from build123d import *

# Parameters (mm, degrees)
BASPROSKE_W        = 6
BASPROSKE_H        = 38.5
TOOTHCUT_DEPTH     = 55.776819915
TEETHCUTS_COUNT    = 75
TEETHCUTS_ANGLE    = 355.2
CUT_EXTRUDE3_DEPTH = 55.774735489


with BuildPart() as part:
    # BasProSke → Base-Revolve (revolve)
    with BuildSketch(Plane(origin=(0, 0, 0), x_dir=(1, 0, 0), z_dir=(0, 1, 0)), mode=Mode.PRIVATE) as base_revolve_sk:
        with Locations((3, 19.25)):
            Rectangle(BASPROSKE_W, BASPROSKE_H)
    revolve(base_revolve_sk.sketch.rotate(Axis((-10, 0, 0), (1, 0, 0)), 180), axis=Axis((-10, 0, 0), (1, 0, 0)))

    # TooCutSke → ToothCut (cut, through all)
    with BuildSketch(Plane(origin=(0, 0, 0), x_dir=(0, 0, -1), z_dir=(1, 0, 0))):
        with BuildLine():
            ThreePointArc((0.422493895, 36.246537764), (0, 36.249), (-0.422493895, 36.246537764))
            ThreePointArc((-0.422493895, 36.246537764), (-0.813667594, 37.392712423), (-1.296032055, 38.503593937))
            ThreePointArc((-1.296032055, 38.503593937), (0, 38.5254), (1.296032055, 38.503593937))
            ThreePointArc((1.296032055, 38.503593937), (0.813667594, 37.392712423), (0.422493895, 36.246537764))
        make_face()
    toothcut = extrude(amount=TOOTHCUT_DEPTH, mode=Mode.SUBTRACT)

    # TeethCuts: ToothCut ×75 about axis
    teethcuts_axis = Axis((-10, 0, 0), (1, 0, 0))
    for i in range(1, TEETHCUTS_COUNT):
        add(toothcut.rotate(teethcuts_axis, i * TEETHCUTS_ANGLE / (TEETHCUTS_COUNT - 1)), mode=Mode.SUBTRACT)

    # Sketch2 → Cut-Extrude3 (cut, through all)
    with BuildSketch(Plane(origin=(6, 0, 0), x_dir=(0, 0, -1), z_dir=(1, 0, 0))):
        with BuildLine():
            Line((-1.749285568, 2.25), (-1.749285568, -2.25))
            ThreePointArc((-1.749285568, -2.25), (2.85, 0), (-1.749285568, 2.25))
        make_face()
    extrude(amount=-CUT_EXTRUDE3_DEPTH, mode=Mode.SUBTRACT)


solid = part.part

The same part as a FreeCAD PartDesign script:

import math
import FreeCAD as App
import Part
import Sketcher

V = App.Vector

doc = App.newDocument("Part")
body = doc.addObject("PartDesign::Body", "Body")

# Sketch on XZ plane
sketch1 = doc.addObject("Sketcher::SketchObject", "Sketch")
body.addObject(sketch1)
sketch1.AttachmentSupport = (doc.XZ_Plane, [""])
sketch1.MapMode = "FlatFace"
sketch1.addGeometry([
    Part.LineSegment(V(0, -38, 0), V(0, 0, 0)),
    Part.LineSegment(V(0, 0, 0), V(6, 0, 0)),
    Part.LineSegment(V(6, 0, 0), V(6, -38, 0)),
    Part.LineSegment(V(6, -38, 0), V(0, -38, 0)),
], False)
sketch1.addConstraint([
    Sketcher.Constraint("Coincident", 0, 2, 1, 1),
    Sketcher.Constraint("Coincident", 1, 2, 2, 1),
    Sketcher.Constraint("Coincident", 2, 2, 3, 1),
    Sketcher.Constraint("Coincident", 3, 2, 0, 1),
    Sketcher.Constraint("Vertical", 0),
    Sketcher.Constraint("Horizontal", 1),
    Sketcher.Constraint("Vertical", 2),
    Sketcher.Constraint("Horizontal", 3),
    Sketcher.Constraint("Coincident", 0, 2, -1, 1),
    Sketcher.Constraint("DistanceX", 1, 1, 1, 2, 6.0),
    Sketcher.Constraint("DistanceY", 0, 1, 0, 2, 38.5),
])
revolution = doc.addObject("PartDesign::Revolution", "Revolution")
body.addObject(revolution)
revolution.Profile = sketch1
revolution.ReferenceAxis = (sketch1, ["H_Axis"])
revolution.Angle = 360

# Sketch on YZ plane
sketch2 = doc.addObject("Sketcher::SketchObject", "Sketch001")
body.addObject(sketch2)
sketch2.AttachmentSupport = (doc.YZ_Plane, [""])
sketch2.MapMode = "FlatFace"
sketch2.addGeometry([
    Part.ArcOfCircle(Part.Circle(V(0, 0, 0), V(0, 0, 1), 36.2), math.radians(-0.67), math.radians(0.67)),
    Part.ArcOfCircle(Part.Circle(V(32, -14.8, 0), V(0, 0, 1), 15), math.radians(64.22), math.radians(73.47)),
    Part.ArcOfCircle(Part.Circle(V(0, 0, 0), V(0, 0, 1), 38.5), math.radians(-1.93), math.radians(1.93)),
    Part.ArcOfCircle(Part.Circle(V(32, 14.8, 0), V(0, 0, 1), 15), math.radians(-73.47), math.radians(-64.22)),
], False)
sketch2.addConstraint([
    Sketcher.Constraint("Coincident", 0, 1, 1, 2),
    Sketcher.Constraint("Coincident", 1, 1, 2, 1),
    Sketcher.Constraint("Coincident", 2, 2, 3, 2),
    Sketcher.Constraint("Coincident", 3, 1, 0, 2),
    Sketcher.Constraint("Coincident", 0, 3, -1, 1),
    Sketcher.Constraint("Coincident", 2, 3, -1, 1),
    Sketcher.Constraint("Equal", 1, 3),
    Sketcher.Constraint("Symmetric", 1, 3, 3, 3, -1),
    Sketcher.Constraint("Radius", 1, 15.0),
    Sketcher.Constraint("Radius", 2, 38.5254),
    Sketcher.Constraint("Radius", 0, 36.248994),
    Sketcher.Constraint("DistanceX", -1, 1, 1, 3, 31.978669),
    Sketcher.Constraint("DistanceY", 1, 3, 3, 3, 29.60505),
])
pocket1 = doc.addObject("PartDesign::Pocket", "Pocket")
body.addObject(pocket1)
pocket1.Profile = sketch2
pocket1.Type = "ThroughAll"
pocket1.Reversed = True
doc.recompute()

polarpattern = doc.addObject("PartDesign::PolarPattern", "PolarPattern")
body.addObject(polarpattern)
polarpattern.Originals = [pocket1]
polarpattern.Axis = (doc.X_Axis, [""])
polarpattern.Angle = 360
polarpattern.Occurrences = 75
body.Tip = polarpattern

# Sketch on YZ plane
sketch3 = doc.addObject("Sketcher::SketchObject", "Sketch002")
body.addObject(sketch3)
sketch3.AttachmentSupport = (doc.YZ_Plane, [""])
sketch3.MapMode = "FlatFace"
sketch3.AttachmentOffset = App.Placement(V(0, 0, 6), App.Rotation())
sketch3.addGeometry([
    Part.LineSegment(V(2.2, 1.7, 0), V(-2.2, 1.7, 0)),
    Part.ArcOfCircle(Part.Circle(V(0, 0, 0), V(0, 0, 1), 2.9), math.radians(142), math.radians(398)),
], False)
sketch3.addConstraint([
    Sketcher.Constraint("Coincident", 0, 1, 1, 2),
    Sketcher.Constraint("Coincident", 1, 1, 0, 2),
    Sketcher.Constraint("Horizontal", 0),
    Sketcher.Constraint("Coincident", 1, 3, -1, 1),
    Sketcher.Constraint("Radius", 1, 2.85),
    Sketcher.Constraint("DistanceX", 0, 2, 0, 1, 4.5),
])
pocket2 = doc.addObject("PartDesign::Pocket", "Pocket001")
body.addObject(pocket2)
pocket2.Profile = sketch3
pocket2.Type = "ThroughAll"

doc.recompute()
